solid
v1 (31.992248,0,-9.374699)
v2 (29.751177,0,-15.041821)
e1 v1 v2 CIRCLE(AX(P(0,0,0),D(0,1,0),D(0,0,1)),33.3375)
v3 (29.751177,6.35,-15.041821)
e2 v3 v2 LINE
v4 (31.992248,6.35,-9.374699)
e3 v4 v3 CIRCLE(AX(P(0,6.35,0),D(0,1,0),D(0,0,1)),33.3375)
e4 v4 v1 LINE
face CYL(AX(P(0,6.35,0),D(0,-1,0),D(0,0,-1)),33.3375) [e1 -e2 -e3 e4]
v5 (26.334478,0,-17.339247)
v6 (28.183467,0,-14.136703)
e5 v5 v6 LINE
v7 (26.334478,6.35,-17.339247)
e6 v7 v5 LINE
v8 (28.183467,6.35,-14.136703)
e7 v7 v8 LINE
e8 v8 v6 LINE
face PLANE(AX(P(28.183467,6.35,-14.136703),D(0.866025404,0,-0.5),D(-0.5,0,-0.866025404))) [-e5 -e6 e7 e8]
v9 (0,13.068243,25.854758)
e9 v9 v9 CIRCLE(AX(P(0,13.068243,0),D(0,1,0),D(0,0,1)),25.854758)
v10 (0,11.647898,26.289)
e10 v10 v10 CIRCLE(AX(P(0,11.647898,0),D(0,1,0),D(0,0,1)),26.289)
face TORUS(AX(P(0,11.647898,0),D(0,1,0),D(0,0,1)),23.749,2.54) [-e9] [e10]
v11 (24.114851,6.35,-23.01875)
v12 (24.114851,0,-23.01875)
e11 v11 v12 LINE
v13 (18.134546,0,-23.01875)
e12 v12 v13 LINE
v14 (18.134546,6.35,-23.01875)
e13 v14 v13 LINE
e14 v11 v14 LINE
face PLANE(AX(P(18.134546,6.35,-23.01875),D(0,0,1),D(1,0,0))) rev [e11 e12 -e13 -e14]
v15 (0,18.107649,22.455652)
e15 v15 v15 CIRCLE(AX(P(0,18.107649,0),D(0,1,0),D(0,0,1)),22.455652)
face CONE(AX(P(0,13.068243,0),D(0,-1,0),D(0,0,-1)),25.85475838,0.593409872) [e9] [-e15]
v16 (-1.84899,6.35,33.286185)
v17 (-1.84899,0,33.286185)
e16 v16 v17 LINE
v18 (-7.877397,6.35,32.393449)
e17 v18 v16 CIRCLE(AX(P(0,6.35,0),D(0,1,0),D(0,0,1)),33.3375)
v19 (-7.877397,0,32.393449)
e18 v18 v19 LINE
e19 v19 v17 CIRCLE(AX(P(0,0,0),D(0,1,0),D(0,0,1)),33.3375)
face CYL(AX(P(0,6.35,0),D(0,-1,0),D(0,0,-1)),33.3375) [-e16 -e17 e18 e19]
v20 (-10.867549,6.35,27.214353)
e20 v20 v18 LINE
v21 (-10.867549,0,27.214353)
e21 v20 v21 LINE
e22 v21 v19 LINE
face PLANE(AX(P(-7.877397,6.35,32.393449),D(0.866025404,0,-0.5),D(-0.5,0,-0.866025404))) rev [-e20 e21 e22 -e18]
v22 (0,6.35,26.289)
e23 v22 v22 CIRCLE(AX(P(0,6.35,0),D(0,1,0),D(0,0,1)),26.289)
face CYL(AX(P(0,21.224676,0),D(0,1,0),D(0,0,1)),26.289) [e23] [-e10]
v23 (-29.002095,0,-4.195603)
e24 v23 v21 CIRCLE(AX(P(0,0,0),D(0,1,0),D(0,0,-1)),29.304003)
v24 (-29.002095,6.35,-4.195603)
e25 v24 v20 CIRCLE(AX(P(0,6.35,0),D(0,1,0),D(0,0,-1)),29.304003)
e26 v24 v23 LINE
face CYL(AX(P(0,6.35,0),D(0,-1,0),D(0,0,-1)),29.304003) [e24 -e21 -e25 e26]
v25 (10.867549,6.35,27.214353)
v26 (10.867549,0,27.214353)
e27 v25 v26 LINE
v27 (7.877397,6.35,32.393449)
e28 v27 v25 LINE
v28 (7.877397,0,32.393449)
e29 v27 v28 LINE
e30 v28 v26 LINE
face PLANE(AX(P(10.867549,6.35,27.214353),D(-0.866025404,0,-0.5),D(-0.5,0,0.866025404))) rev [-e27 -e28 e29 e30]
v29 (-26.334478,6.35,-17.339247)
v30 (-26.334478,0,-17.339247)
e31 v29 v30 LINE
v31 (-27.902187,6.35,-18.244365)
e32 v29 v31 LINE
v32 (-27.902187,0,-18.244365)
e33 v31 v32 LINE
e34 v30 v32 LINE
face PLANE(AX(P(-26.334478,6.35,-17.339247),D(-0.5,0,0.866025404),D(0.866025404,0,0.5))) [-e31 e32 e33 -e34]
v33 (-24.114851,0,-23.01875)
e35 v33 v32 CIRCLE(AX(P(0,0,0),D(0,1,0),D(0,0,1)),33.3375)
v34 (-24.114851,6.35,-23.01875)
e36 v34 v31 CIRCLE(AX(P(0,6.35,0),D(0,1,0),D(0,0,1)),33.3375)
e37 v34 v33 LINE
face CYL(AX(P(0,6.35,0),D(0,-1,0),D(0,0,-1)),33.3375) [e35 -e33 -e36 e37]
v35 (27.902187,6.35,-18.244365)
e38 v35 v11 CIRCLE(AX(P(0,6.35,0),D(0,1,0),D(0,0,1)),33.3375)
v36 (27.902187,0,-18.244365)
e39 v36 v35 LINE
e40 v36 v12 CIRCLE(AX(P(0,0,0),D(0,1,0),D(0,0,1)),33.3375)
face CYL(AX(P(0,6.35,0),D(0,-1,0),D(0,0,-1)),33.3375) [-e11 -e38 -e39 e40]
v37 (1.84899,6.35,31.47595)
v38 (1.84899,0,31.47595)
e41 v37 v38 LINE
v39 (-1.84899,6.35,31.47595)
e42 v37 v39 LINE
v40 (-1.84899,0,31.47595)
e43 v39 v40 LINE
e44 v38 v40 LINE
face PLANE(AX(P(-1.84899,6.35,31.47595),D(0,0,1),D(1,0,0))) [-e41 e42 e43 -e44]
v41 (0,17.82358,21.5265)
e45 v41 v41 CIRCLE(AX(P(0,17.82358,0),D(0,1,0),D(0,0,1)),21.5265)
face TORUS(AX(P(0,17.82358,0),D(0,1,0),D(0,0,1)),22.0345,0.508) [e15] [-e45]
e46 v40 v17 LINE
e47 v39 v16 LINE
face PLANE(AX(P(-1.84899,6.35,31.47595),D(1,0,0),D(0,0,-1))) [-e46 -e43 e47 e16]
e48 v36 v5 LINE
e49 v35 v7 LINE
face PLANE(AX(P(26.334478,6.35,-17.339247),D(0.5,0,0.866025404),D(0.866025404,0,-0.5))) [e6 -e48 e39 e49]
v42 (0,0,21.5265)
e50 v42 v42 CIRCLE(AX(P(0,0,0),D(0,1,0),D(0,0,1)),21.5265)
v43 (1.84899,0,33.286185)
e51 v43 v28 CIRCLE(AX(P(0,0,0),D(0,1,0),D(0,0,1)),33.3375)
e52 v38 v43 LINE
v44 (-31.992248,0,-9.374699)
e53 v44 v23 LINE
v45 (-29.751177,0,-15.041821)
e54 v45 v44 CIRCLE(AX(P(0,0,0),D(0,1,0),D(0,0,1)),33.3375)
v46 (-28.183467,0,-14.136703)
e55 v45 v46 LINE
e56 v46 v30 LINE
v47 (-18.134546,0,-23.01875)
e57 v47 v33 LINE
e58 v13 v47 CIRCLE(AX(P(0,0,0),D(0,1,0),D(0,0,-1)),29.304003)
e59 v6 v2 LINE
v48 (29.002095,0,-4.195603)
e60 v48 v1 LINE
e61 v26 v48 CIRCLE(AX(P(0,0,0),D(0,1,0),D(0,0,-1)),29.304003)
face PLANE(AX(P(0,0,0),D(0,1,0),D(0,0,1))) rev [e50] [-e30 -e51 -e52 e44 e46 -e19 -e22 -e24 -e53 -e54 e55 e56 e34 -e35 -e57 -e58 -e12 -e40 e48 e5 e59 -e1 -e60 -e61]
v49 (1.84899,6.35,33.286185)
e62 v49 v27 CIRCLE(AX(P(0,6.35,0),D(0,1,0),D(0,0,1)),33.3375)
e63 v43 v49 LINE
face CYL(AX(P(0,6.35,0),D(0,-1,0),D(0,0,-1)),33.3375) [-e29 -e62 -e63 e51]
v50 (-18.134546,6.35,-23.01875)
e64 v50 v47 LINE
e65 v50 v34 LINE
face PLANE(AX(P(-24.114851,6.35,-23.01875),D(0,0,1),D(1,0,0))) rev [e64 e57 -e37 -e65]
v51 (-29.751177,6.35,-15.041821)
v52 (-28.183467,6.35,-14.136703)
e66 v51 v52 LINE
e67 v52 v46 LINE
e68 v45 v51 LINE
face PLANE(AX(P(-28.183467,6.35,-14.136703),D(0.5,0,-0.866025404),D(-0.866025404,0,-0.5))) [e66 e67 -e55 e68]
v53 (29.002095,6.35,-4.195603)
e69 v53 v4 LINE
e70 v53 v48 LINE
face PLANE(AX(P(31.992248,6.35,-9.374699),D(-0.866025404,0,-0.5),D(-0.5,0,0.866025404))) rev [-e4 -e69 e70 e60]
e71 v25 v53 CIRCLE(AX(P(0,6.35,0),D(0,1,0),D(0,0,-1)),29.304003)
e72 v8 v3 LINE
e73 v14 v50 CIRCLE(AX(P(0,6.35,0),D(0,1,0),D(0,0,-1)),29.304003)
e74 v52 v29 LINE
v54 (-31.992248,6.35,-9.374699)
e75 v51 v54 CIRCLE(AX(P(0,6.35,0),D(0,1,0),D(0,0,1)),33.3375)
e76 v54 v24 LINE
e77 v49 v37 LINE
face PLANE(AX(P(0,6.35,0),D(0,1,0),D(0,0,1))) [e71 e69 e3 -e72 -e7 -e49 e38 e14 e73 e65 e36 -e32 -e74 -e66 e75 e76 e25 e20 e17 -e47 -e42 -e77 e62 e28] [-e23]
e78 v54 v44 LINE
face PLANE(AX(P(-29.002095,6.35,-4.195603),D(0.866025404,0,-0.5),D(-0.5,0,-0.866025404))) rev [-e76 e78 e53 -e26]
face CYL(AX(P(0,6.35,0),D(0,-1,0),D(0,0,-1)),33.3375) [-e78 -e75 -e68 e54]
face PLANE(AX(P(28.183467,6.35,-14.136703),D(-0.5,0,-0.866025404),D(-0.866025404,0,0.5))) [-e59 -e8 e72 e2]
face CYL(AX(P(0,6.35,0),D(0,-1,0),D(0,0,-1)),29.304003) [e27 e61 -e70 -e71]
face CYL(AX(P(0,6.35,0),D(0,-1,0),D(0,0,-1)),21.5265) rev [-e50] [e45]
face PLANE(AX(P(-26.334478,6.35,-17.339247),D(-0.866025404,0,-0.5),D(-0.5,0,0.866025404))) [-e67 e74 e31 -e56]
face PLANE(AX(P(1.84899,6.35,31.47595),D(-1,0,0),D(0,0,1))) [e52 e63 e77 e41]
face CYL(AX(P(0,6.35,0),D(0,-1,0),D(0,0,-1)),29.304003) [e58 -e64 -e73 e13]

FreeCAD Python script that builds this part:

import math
import FreeCAD as App
import Part
import Sketcher

V = App.Vector
Q = App.Units.Quantity


def add_polygon(sketch, points):
    """Adds a closed chain of lines whose ends are joined by coincident constraints."""
    first, n = sketch.GeometryCount, len(points)
    for a, b in zip(points, points[1:] + points[:1]):
        sketch.addGeometry(Part.LineSegment(App.Vector(*a, 0), App.Vector(*b, 0)), False)
    for i in range(n):
        sketch.addConstraint(Sketcher.Constraint("Coincident", first + i, 2, first + (i + 1) % n, 1))

doc = App.newDocument("Part")
body = doc.addObject("PartDesign::Body", "Body")

# Sketch on XZ plane
sketch1 = body.newObject("Sketcher::SketchObject", "Sketch")
sketch1.AttachmentSupport = (doc.getObject("XZ_Plane"), [""])
sketch1.MapMode = "FlatFace"
sketch1.addGeometry([
    Part.Circle(V(0, 0, 0), V(0, 0, 1), 33),
    Part.Circle(V(0, 0, 0), V(0, 0, 1), 22),
], False)
sketch1.addConstraint([
    Sketcher.Constraint("Coincident", 0, 3, -1, 1),
    Sketcher.Constraint("Coincident", 1, 3, -1, 1),
    Sketcher.Constraint("Diameter", 0, Q("2.625 in")),
    Sketcher.Constraint("Diameter", 1, Q("1.695 in")),
])
pad1 = body.newObject("PartDesign::Pad", "Pad")
pad1.Profile = sketch1
pad1.Length = Q("0.25 in")
pad1.Reversed = True

# Sketch on XY plane
sketch2 = body.newObject("Sketcher::SketchObject", "Sketch001")
sketch2.AttachmentSupport = (doc.getObject("XY_Plane"), [""])
sketch2.MapMode = "FlatFace"
sketch2.addGeometry([
    Part.LineSegment(V(21.5, 17.8, 0), V(21.5, 6.3, 0)),  # 0
    Part.LineSegment(V(21.5, 6.3, 0), V(26.3, 6.3, 0)),  # 1
    Part.LineSegment(V(26.3, 6.3, 0), V(26.3, 11.6, 0)),  # 2
    Part.ArcOfCircle(Part.Circle(V(23.7, 11.6, 0), V(0, 0, 1), 2.5), math.radians(0), math.radians(34)),  # 3
    Part.LineSegment(V(25.9, 13.1, 0), V(22.5, 18.1, 0)),  # 4
    Part.ArcOfCircle(Part.Circle(V(22, 17.8, 0), V(0, 0, 1), 0.5), math.radians(34), math.radians(180)),  # 5
], False)
sketch2.addConstraint([
    Sketcher.Constraint("Coincident", 0, 2, 1, 1),
    Sketcher.Constraint("Coincident", 1, 2, 2, 1),
    Sketcher.Constraint("Tangent", 2, 2, 3, 1),
    Sketcher.Constraint("Tangent", 3, 2, 4, 1),
    Sketcher.Constraint("Tangent", 4, 2, 5, 1),
    Sketcher.Constraint("Tangent", 5, 2, 0, 1),
    Sketcher.Constraint("Vertical", 0),
    Sketcher.Constraint("Horizontal", 1),
    Sketcher.Constraint("Vertical", 2),
    Sketcher.Constraint("Radius", 3, Q("0.1 in")),
    Sketcher.Constraint("Radius", 5, Q("0.02 in")),
    Sketcher.Constraint("DistanceX", 1, 1, 1, 2, Q("0.1875 in")),
    Sketcher.Constraint("DistanceY", -1, 1, 0, 2, Q("0.25 in")),
    Sketcher.Constraint("DistanceX", -1, 1, 3, 3, Q("0.935 in")),
    Sketcher.Constraint("DistanceY", 0, 2, 0, 1, 11.47358),
    Sketcher.Constraint("DistanceY", 2, 1, 2, 2, 5.297898),
])
revolution = body.newObject("PartDesign::Revolution", "Revolution")
revolution.Profile = sketch2
revolution.ReferenceAxis = (sketch2, ["V_Axis"])
revolution.Angle = 360

# Sketch on XZ plane
sketch3 = body.newObject("Sketcher::SketchObject", "Sketch002")
sketch3.AttachmentSupport = (doc.getObject("XZ_Plane"), [""])
sketch3.MapMode = "FlatFace"
sketch3.addGeometry([
    Part.Circle(V(0, 0, 0), V(0, 0, 1), 40),  # 0
    Part.ArcOfCircle(Part.Circle(V(0, 0, 0), V(0, 0, 1), 33), math.radians(-164), math.radians(-136)),  # 1
    Part.LineSegment(V(-24, -23, 0), V(-18, -23, 0)),  # 2
    Part.ArcOfCircle(Part.Circle(V(0, 0, 0), V(0, 0, 1), 29), math.radians(-128), math.radians(-52)),  # 3
    Part.LineSegment(V(18, -23, 0), V(24, -23, 0)),  # 4
    Part.ArcOfCircle(Part.Circle(V(0, 0, 0), V(0, 0, 1), 33), math.radians(-44), math.radians(-16)),  # 5
    Part.LineSegment(V(32, -9, 0), V(29, -4, 0)),  # 6
    Part.ArcOfCircle(Part.Circle(V(0, 0, 0), V(0, 0, 1), 29), math.radians(-8), math.radians(68)),  # 7
    Part.LineSegment(V(11, 27, 0), V(8, 32, 0)),  # 8
    Part.ArcOfCircle(Part.Circle(V(0, 0, 0), V(0, 0, 1), 33), math.radians(76), math.radians(104)),  # 9
    Part.LineSegment(V(-8, 32, 0), V(-11, 27, 0)),  # 10
    Part.ArcOfCircle(Part.Circle(V(0, 0, 0), V(0, 0, 1), 29), math.radians(112), math.radians(188)),  # 11
    Part.LineSegment(V(-29, -4, 0), V(-32, -9, 0)),  # 12
], False)
sketch3.addConstraint([
    Sketcher.Constraint("Coincident", 1, 2, 2, 1),
    Sketcher.Constraint("Coincident", 2, 2, 3, 1),
    Sketcher.Constraint("Coincident", 3, 2, 4, 1),
    Sketcher.Constraint("Coincident", 4, 2, 5, 1),
    Sketcher.Constraint("Coincident", 5, 2, 6, 1),
    Sketcher.Constraint("Coincident", 6, 2, 7, 1),
    Sketcher.Constraint("Coincident", 7, 2, 8, 1),
    Sketcher.Constraint("Coincident", 8, 2, 9, 1),
    Sketcher.Constraint("Coincident", 9, 2, 10, 1),
    Sketcher.Constraint("Coincident", 10, 2, 11, 1),
    Sketcher.Constraint("Coincident", 11, 2, 12, 1),
    Sketcher.Constraint("Coincident", 12, 2, 1, 1),
    Sketcher.Constraint("Horizontal", 2),
    Sketcher.Constraint("Horizontal", 4),
    Sketcher.Constraint("Coincident", 0, 3, -1, 1),
    Sketcher.Constraint("Coincident", 1, 3, -1, 1),
    Sketcher.Constraint("Coincident", 3, 3, -1, 1),
    Sketcher.Constraint("Coincident", 5, 3, -1, 1),
    Sketcher.Constraint("Coincident", 7, 3, -1, 1),
    Sketcher.Constraint("Coincident", 9, 3, -1, 1),
    Sketcher.Constraint("Coincident", 11, 3, -1, 1),
    Sketcher.Constraint("Equal", 1, 5),
    Sketcher.Constraint("Equal", 3, 7),
    Sketcher.Constraint("Equal", 5, 9),
    Sketcher.Constraint("Equal", 7, 11),
    Sketcher.Constraint("Parallel", 6, 8),
    Sketcher.Constraint("Parallel", 10, 12),
    Sketcher.Constraint("Horizontal", 2, 2, 3, 2),
    Sketcher.Constraint("Horizontal", 8, 2, 9, 2),
    Sketcher.Constraint("Horizontal", 7, 2, 10, 2),
    Sketcher.Constraint("Horizontal", 6, 2, 11, 2),
    Sketcher.Constraint("Equal", 6, 8),
    Sketcher.Constraint("Angle", 6, Q("120 deg")),
    Sketcher.Constraint("Radius", 1, Q("1.3125 in")),
    Sketcher.Constraint("DistanceY", 1, 2, -1, 1, Q("0.90625 in")),
    Sketcher.Constraint("Diameter", 0, 79.778066),
    Sketcher.Constraint("Radius", 3, 29.304003),
    Sketcher.Constraint("DistanceY", 5, 2, -1, 1, 9.374699),
])
pocket1 = body.newObject("PartDesign::Pocket", "Pocket")
pocket1.Profile = sketch3
pocket1.Length = Q("0.25 in")

# Sketch on XZ plane
sketch4 = body.newObject("Sketcher::SketchObject", "Sketch003")
sketch4.AttachmentSupport = (doc.getObject("XZ_Plane"), [""])
sketch4.MapMode = "FlatFace"
add_polygon(sketch4, [(-31.4, -16), (-28.2, -14.1), (-26.3, -17.3), (-29.6, -19.2)])  # lines 0-3
add_polygon(sketch4, [(-1.8, 31.5), (-1.8, 35.2), (1.8, 35.2), (1.8, 31.5)])  # lines 4-7
add_polygon(sketch4, [(29.6, -19.2), (26.3, -17.3), (28.2, -14.1), (31.4, -16)])  # lines 8-11
sketch4.addConstraint([
    Sketcher.Constraint("Vertical", 4),
    Sketcher.Constraint("Horizontal", 5),
    Sketcher.Constraint("Vertical", 6),
    Sketcher.Constraint("Horizontal", 7),
    Sketcher.Constraint("Symmetric", 1, 2, 8, 2, -2),
    Sketcher.Constraint("Symmetric", 0, 2, 9, 2, -2),
    Sketcher.Constraint("Symmetric", 3, 2, 10, 2, -2),
    Sketcher.Constraint("Symmetric", 2, 2, 11, 2, -2),
    Sketcher.Constraint("Perpendicular", 0, 1),
    Sketcher.Constraint("Perpendicular", 1, 2),
    Sketcher.Constraint("Perpendicular", 2, 3),
    Sketcher.Constraint("Angle", 0, Q("30 deg")),
    Sketcher.Constraint("DistanceY", 4, 1, 4, 2, 3.7231),
    Sketcher.Constraint("Distance", 0, 3.7231),
    Sketcher.Constraint("DistanceX", 5, 1, 5, 2, 3.697979),
    Sketcher.Constraint("Distance", 1, 3.697979),
    Sketcher.Constraint("DistanceX", 4, 2, -1, 1, 1.84899),
    Sketcher.Constraint("DistanceY", -1, 1, 4, 2, 35.19905),
    Sketcher.Constraint("DistanceX", 0, 2, -1, 1, 28.183467),
    Sketcher.Constraint("DistanceY", 0, 2, -1, 1, 14.136703),
])
pocket2 = body.newObject("PartDesign::Pocket", "Pocket001")
pocket2.Profile = sketch4
pocket2.Length = Q("0.25 in")

doc.recompute()
